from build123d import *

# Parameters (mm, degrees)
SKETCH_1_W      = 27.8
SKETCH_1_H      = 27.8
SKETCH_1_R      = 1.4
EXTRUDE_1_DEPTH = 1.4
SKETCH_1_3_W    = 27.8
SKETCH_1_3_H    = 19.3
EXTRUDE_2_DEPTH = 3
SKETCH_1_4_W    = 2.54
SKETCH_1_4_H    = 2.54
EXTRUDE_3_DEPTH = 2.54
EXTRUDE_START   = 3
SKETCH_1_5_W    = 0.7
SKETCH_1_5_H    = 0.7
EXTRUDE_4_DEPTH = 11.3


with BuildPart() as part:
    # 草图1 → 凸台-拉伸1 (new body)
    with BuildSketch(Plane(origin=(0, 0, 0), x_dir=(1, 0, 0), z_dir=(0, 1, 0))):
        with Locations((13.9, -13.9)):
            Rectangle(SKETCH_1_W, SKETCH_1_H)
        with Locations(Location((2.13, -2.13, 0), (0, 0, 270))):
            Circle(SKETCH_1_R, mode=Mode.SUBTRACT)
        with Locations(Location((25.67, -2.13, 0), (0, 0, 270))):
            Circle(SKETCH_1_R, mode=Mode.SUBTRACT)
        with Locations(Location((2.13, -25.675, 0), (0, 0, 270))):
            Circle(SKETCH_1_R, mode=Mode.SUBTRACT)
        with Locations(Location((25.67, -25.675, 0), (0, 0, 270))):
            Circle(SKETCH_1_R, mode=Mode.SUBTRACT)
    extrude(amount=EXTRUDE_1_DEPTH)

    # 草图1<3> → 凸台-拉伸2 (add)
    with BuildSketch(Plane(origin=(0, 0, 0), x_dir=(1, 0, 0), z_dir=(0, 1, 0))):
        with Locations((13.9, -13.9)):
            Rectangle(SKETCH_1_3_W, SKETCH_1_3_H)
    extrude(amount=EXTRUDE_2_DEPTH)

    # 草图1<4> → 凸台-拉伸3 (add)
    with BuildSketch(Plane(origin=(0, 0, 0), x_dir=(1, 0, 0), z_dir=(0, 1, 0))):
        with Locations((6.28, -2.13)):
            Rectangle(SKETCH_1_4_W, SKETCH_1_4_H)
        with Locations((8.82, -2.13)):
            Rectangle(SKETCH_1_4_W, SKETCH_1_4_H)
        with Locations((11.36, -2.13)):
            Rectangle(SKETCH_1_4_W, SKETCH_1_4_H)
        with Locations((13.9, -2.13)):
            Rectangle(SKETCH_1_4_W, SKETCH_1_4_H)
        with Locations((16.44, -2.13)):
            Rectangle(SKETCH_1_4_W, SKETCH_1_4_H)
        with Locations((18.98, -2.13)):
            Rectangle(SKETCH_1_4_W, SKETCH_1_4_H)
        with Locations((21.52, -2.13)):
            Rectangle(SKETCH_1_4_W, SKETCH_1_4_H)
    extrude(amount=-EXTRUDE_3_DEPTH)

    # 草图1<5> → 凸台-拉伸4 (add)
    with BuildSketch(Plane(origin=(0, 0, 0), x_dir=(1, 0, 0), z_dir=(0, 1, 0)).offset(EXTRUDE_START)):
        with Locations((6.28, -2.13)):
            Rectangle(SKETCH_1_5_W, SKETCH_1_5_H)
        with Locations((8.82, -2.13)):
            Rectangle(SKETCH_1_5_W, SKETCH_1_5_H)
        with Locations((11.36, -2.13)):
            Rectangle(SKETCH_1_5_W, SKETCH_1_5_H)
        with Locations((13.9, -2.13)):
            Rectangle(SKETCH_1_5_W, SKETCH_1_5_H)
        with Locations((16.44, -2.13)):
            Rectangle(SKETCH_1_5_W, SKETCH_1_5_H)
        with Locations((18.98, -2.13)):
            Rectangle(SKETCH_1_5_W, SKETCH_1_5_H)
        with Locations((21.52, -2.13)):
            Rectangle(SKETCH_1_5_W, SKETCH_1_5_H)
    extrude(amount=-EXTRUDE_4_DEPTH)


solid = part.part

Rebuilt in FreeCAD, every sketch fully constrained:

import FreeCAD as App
import Part
import Sketcher
from FreeCAD import Vector
Q = App.Units.Quantity


def add_polygon(sketch, points):
    """Adds a closed chain of lines whose ends are joined by coincident constraints."""
    first, n = sketch.GeometryCount, len(points)
    for a, b in zip(points, points[1:] + points[:1]):
        sketch.addGeometry(Part.LineSegment(App.Vector(*a, 0), App.Vector(*b, 0)), False)
    for i in range(n):
        sketch.addConstraint(Sketcher.Constraint("Coincident", first + i, 2, first + (i + 1) % n, 1))

doc = App.newDocument("Part")
body = doc.addObject("PartDesign::Body", "Body")

# Sketch on XZ plane
sketch1 = body.newObject("Sketcher::SketchObject", "Sketch")
sketch1.AttachmentSupport = (doc.getObject("XZ_Plane"), [""])
sketch1.MapMode = "FlatFace"
add_polygon(sketch1, [(0, 0), (0, 27.8), (27.8, 27.8), (27.8, 0)])  # lines 0-3
sketch1.addGeometry(Part.Circle(Vector(2.1, 25.7, 0), Vector(0, 0, 1), 1.4), False)  # 4
sketch1.addGeometry(Part.Circle(Vector(25.7, 25.7, 0), Vector(0, 0, 1), 1.4), False)  # 5
sketch1.addGeometry(Part.Circle(Vector(2.1, 2.1, 0), Vector(0, 0, 1), 1.4), False)  # 6
sketch1.addGeometry(Part.Circle(Vector(25.7, 2.1, 0), Vector(0, 0, 1), 1.4), False)  # 7
sketch1.addConstraint([
    Sketcher.Constraint("Vertical", 0),
    Sketcher.Constraint("Horizontal", 1),
    Sketcher.Constraint("Vertical", 2),
    Sketcher.Constraint("Horizontal", 3),
    Sketcher.Constraint("Coincident", 3, 2, -1, 1),
    Sketcher.Constraint("Equal", 4, 5),
    Sketcher.Constraint("Equal", 5, 6),
    Sketcher.Constraint("Equal", 6, 7),
    Sketcher.Constraint("Horizontal", 4, 3, 5, 3),
    Sketcher.Constraint("Horizontal", 6, 3, 7, 3),
    Sketcher.Constraint("Vertical", 4, 3, 6, 3),
    Sketcher.Constraint("Vertical", 5, 3, 7, 3),
    Sketcher.Constraint("Equal", 3, 0),
    Sketcher.Constraint("Diameter", 4, Q("2.8 mm")),
    Sketcher.Constraint("DistanceX", 1, 1, 1, 2, Q("27.8 mm")),
    Sketcher.Constraint("DistanceX", -1, 1, 4, 3, Q("2.13 mm")),
    Sketcher.Constraint("DistanceX", -1, 1, 5, 3, Q("25.67 mm")),
    Sketcher.Constraint("DistanceY", -1, 1, 6, 3, Q("2.13 mm")),
    Sketcher.Constraint("DistanceY", -1, 1, 4, 3, Q("25.675 mm")),
])
pad1 = body.newObject("PartDesign::Pad", "Pad")
pad1.Profile = sketch1
pad1.Length = 1.4
pad1.Reversed = True

# Sketch on XZ plane
sketch2 = body.newObject("Sketcher::SketchObject", "Sketch001")
sketch2.AttachmentSupport = (doc.getObject("XZ_Plane"), [""])
sketch2.MapMode = "FlatFace"
add_polygon(sketch2, [(0, 4), (0, 24), (28, 24), (28, 4)])  # lines 0-3
sketch2.addConstraint([
    Sketcher.Constraint("Vertical", 0),
    Sketcher.Constraint("Horizontal", 1),
    Sketcher.Constraint("Vertical", 2),
    Sketcher.Constraint("Horizontal", 3),
    Sketcher.Constraint("PointOnObject", 0, 2, -2),
    Sketcher.Constraint("DistanceX", 1, 1, 1, 2, Q("27.8 mm")),
    Sketcher.Constraint("DistanceY", 0, 1, 0, 2, Q("19.3 mm")),
    Sketcher.Constraint("DistanceY", -1, 1, 0, 2, Q("23.55 mm")),
])
pad2 = body.newObject("PartDesign::Pad", "Pad001")
pad2.Profile = sketch2
pad2.Length = 3
pad2.Reversed = True

# Sketch on XZ plane
sketch3 = body.newObject("Sketcher::SketchObject", "Sketch002")
sketch3.AttachmentSupport = (doc.getObject("XZ_Plane"), [""])
sketch3.MapMode = "FlatFace"
add_polygon(sketch3, [(5, 0.9), (5, 3.4), (22.8, 3.4), (22.8, 0.9)])  # lines 0-3
sketch3.addConstraint([
    Sketcher.Constraint("Vertical", 0),
    Sketcher.Constraint("Horizontal", 1),
    Sketcher.Constraint("Vertical", 2),
    Sketcher.Constraint("Horizontal", 3),
    Sketcher.Constraint("DistanceX", 1, 1, 1, 2, Q("17.78 mm")),
    Sketcher.Constraint("DistanceY", 0, 1, 0, 2, Q("2.54 mm")),
    Sketcher.Constraint("DistanceY", -1, 1, 0, 2, Q("3.4 mm")),
    Sketcher.Constraint("DistanceX", -1, 1, 0, 2, Q("5.01 mm")),
])
pad3 = body.newObject("PartDesign::Pad", "Pad002")
pad3.Profile = sketch3
pad3.Length = 2.54

# Sketch on XZ plane
sketch4 = body.newObject("Sketcher::SketchObject", "Sketch003")
sketch4.AttachmentSupport = (doc.getObject("XZ_Plane"), [""])
sketch4.MapMode = "FlatFace"
sketch4.AttachmentOffset = App.Placement(Vector(0, 0, -3), App.Rotation())
add_polygon(sketch4, [(5.9, 1.8), (5.9, 2.5), (6.6, 2.5), (6.6, 1.8)])  # lines 0-3
add_polygon(sketch4, [(8.5, 1.8), (8.5, 2.5), (9.2, 2.5), (9.2, 1.8)])  # lines 4-7
add_polygon(sketch4, [(11, 1.8), (11, 2.5), (11.7, 2.5), (11.7, 1.8)])  # lines 8-11
add_polygon(sketch4, [(13.6, 1.8), (13.6, 2.5), (14.2, 2.5), (14.2, 1.8)])  # lines 12-15
add_polygon(sketch4, [(16.1, 1.8), (16.1, 2.5), (16.8, 2.5), (16.8, 1.8)])  # lines 16-19
add_polygon(sketch4, [(18.6, 1.8), (18.6, 2.5), (19.3, 2.5), (19.3, 1.8)])  # lines 20-23
add_polygon(sketch4, [(21.2, 1.8), (21.2, 2.5), (21.9, 2.5), (21.9, 1.8)])  # lines 24-27
sketch4.addConstraint([
    Sketcher.Constraint("Vertical", 0),
    Sketcher.Constraint("Horizontal", 1),
    Sketcher.Constraint("Vertical", 2),
    Sketcher.Constraint("Horizontal", 3),
    Sketcher.Constraint("Vertical", 4),
    Sketcher.Constraint("Horizontal", 5),
    Sketcher.Constraint("Vertical", 6),
    Sketcher.Constraint("Horizontal", 7),
    Sketcher.Constraint("Vertical", 8),
    Sketcher.Constraint("Horizontal", 9),
    Sketcher.Constraint("Vertical", 10),
    Sketcher.Constraint("Horizontal", 11),
    Sketcher.Constraint("Vertical", 12),
    Sketcher.Constraint("Horizontal", 13),
    Sketcher.Constraint("Vertical", 14),
    Sketcher.Constraint("Horizontal", 15),
    Sketcher.Constraint("Vertical", 16),
    Sketcher.Constraint("Horizontal", 17),
    Sketcher.Constraint("Vertical", 18),
    Sketcher.Constraint("Horizontal", 19),
    Sketcher.Constraint("Vertical", 20),
    Sketcher.Constraint("Horizontal", 21),
    Sketcher.Constraint("Vertical", 22),
    Sketcher.Constraint("Horizontal", 23),
    Sketcher.Constraint("Vertical", 24),
    Sketcher.Constraint("Horizontal", 25),
    Sketcher.Constraint("Vertical", 26),
    Sketcher.Constraint("Horizontal", 27),
    Sketcher.Constraint("Horizontal", 1, 2, 4, 2),
    Sketcher.Constraint("Horizontal", 3, 2, 6, 2),
    Sketcher.Constraint("Horizontal", 5, 2, 8, 2),
    Sketcher.Constraint("Horizontal", 7, 2, 10, 2),
    Sketcher.Constraint("Horizontal", 9, 2, 12, 2),
    Sketcher.Constraint("Horizontal", 11, 2, 14, 2),
    Sketcher.Constraint("Horizontal", 13, 2, 16, 2),
    Sketcher.Constraint("Horizontal", 15, 2, 18, 2),
    Sketcher.Constraint("Horizontal", 17, 2, 20, 2),
    Sketcher.Constraint("Horizontal", 19, 2, 22, 2),
    Sketcher.Constraint("Horizontal", 21, 2, 24, 2),
    Sketcher.Constraint("Horizontal", 23, 2, 26, 2),
    Sketcher.Constraint("Equal", 3, 5),
    Sketcher.Constraint("Equal", 7, 9),
    Sketcher.Constraint("Equal", 11, 13),
    Sketcher.Constraint("Equal", 15, 17),
    Sketcher.Constraint("Equal", 19, 21),
    Sketcher.Constraint("Equal", 23, 25),
    Sketcher.Constraint("Equal", 27, 0),
    Sketcher.Constraint("DistanceX", 1, 1, 1, 2, Q("0.7 mm")),
    Sketcher.Constraint("DistanceX", -1, 1, 0, 2, Q("5.93 mm")),
    Sketcher.Constraint("DistanceY", -1, 1, 0, 2, Q("2.48 mm")),
    Sketcher.Constraint("DistanceX", -1, 1, 4, 2, Q("8.47 mm")),
    Sketcher.Constraint("DistanceX", -1, 1, 8, 2, Q("11.01 mm")),
    Sketcher.Constraint("DistanceX", -1, 1, 12, 2, Q("13.55 mm")),
    Sketcher.Constraint("DistanceX", -1, 1, 16, 2, Q("16.09 mm")),
    Sketcher.Constraint("DistanceX", -1, 1, 20, 2, Q("18.63 mm")),
    Sketcher.Constraint("DistanceX", -1, 1, 24, 2, Q("21.17 mm")),
])
pad4 = body.newObject("PartDesign::Pad", "Pad003")
pad4.Profile = sketch4
pad4.Length = 11.3

doc.recompute()
